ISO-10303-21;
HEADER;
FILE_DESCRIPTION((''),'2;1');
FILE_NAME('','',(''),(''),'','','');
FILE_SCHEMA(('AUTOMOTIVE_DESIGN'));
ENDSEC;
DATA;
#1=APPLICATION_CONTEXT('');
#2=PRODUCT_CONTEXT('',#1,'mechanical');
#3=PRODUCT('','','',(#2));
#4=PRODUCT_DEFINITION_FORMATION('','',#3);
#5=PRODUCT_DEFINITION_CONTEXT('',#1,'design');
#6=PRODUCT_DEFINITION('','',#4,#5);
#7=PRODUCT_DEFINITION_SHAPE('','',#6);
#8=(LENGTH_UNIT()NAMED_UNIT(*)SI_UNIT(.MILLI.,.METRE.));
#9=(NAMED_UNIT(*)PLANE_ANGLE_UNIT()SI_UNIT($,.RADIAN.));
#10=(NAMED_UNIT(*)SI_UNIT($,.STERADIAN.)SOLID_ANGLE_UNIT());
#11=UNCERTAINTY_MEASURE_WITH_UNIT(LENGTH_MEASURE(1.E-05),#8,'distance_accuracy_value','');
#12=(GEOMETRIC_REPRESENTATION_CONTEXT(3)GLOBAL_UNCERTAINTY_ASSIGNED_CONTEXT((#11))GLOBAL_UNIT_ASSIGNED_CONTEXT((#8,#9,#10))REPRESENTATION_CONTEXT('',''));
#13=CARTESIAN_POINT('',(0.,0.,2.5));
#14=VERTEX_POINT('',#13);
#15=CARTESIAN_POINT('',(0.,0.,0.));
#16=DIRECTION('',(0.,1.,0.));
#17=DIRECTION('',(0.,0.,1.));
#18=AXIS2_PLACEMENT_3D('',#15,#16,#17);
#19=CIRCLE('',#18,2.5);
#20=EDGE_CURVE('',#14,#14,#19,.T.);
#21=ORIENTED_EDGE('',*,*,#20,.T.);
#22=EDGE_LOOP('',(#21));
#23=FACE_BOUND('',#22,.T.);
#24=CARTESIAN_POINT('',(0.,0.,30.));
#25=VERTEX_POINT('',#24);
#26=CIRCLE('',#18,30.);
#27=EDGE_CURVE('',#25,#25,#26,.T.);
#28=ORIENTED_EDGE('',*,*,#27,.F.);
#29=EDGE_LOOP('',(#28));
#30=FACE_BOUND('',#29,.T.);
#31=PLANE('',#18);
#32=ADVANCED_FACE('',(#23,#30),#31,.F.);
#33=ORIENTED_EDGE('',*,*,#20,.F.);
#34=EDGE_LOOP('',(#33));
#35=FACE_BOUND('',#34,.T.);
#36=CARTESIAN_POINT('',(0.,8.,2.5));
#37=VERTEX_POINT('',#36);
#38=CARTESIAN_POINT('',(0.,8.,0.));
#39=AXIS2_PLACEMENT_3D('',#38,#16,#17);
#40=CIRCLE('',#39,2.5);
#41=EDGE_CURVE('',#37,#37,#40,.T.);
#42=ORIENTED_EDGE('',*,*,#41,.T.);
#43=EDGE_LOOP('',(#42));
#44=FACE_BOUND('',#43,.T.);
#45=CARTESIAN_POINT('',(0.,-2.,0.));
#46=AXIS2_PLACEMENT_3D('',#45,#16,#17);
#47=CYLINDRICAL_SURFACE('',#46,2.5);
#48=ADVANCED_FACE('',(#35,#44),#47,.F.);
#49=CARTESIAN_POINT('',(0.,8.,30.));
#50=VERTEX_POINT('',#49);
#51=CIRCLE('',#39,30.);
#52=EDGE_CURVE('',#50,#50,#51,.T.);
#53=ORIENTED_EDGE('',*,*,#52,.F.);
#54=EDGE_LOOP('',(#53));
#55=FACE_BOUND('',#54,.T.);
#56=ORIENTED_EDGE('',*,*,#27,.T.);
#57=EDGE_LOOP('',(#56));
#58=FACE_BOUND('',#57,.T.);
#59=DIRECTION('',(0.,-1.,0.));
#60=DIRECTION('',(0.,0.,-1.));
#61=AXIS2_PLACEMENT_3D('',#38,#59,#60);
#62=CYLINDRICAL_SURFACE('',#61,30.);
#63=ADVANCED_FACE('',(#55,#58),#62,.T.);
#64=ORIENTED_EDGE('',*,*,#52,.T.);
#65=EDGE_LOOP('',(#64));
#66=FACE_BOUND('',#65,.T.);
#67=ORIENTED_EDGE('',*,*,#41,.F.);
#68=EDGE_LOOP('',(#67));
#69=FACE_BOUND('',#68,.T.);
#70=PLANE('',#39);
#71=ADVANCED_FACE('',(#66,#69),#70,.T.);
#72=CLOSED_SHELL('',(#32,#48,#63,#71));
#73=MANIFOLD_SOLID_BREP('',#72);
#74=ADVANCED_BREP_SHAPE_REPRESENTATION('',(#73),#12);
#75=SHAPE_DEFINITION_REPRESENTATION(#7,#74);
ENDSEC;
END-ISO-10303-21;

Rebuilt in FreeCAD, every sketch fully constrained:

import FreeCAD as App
import Part
import Sketcher
from FreeCAD import Vector

doc = App.newDocument("Part")
body = doc.addObject("PartDesign::Body", "Body")

# Sketch on XZ plane
sketch1 = body.newObject("Sketcher::SketchObject", "Sketch")
sketch1.AttachmentSupport = (doc.getObject("XZ_Plane"), [""])
sketch1.MapMode = "FlatFace"
sketch1.addGeometry(Part.Circle(Vector(0, 0, 0), Vector(0, 0, 1), 30), False)
sketch1.addConstraint([
    Sketcher.Constraint("Coincident", 0, 3, -1, 1),
    Sketcher.Constraint("Diameter", 0, 60.0),
])
pad1 = body.newObject("PartDesign::Pad", "Pad")
pad1.Profile = sketch1
pad1.Length = 8
pad1.Reversed = True

# Sketch on XZ plane
sketch2 = body.newObject("Sketcher::SketchObject", "Sketch001")
sketch2.AttachmentSupport = (doc.getObject("XZ_Plane"), [""])
sketch2.MapMode = "FlatFace"
sketch2.AttachmentOffset = App.Placement(Vector(0, 0, -8), App.Rotation())
sketch2.addGeometry(Part.Circle(Vector(0, 0, 0), Vector(0, 0, 1), 2.5), False)
sketch2.addConstraint([
    Sketcher.Constraint("Coincident", 0, 3, -1, 1),
    Sketcher.Constraint("Diameter", 0, 5.0),
])
pocket1 = body.newObject("PartDesign::Pocket", "Pocket")
pocket1.Profile = sketch2
pocket1.Length = 10
pocket1.Reversed = True

doc.recompute()
